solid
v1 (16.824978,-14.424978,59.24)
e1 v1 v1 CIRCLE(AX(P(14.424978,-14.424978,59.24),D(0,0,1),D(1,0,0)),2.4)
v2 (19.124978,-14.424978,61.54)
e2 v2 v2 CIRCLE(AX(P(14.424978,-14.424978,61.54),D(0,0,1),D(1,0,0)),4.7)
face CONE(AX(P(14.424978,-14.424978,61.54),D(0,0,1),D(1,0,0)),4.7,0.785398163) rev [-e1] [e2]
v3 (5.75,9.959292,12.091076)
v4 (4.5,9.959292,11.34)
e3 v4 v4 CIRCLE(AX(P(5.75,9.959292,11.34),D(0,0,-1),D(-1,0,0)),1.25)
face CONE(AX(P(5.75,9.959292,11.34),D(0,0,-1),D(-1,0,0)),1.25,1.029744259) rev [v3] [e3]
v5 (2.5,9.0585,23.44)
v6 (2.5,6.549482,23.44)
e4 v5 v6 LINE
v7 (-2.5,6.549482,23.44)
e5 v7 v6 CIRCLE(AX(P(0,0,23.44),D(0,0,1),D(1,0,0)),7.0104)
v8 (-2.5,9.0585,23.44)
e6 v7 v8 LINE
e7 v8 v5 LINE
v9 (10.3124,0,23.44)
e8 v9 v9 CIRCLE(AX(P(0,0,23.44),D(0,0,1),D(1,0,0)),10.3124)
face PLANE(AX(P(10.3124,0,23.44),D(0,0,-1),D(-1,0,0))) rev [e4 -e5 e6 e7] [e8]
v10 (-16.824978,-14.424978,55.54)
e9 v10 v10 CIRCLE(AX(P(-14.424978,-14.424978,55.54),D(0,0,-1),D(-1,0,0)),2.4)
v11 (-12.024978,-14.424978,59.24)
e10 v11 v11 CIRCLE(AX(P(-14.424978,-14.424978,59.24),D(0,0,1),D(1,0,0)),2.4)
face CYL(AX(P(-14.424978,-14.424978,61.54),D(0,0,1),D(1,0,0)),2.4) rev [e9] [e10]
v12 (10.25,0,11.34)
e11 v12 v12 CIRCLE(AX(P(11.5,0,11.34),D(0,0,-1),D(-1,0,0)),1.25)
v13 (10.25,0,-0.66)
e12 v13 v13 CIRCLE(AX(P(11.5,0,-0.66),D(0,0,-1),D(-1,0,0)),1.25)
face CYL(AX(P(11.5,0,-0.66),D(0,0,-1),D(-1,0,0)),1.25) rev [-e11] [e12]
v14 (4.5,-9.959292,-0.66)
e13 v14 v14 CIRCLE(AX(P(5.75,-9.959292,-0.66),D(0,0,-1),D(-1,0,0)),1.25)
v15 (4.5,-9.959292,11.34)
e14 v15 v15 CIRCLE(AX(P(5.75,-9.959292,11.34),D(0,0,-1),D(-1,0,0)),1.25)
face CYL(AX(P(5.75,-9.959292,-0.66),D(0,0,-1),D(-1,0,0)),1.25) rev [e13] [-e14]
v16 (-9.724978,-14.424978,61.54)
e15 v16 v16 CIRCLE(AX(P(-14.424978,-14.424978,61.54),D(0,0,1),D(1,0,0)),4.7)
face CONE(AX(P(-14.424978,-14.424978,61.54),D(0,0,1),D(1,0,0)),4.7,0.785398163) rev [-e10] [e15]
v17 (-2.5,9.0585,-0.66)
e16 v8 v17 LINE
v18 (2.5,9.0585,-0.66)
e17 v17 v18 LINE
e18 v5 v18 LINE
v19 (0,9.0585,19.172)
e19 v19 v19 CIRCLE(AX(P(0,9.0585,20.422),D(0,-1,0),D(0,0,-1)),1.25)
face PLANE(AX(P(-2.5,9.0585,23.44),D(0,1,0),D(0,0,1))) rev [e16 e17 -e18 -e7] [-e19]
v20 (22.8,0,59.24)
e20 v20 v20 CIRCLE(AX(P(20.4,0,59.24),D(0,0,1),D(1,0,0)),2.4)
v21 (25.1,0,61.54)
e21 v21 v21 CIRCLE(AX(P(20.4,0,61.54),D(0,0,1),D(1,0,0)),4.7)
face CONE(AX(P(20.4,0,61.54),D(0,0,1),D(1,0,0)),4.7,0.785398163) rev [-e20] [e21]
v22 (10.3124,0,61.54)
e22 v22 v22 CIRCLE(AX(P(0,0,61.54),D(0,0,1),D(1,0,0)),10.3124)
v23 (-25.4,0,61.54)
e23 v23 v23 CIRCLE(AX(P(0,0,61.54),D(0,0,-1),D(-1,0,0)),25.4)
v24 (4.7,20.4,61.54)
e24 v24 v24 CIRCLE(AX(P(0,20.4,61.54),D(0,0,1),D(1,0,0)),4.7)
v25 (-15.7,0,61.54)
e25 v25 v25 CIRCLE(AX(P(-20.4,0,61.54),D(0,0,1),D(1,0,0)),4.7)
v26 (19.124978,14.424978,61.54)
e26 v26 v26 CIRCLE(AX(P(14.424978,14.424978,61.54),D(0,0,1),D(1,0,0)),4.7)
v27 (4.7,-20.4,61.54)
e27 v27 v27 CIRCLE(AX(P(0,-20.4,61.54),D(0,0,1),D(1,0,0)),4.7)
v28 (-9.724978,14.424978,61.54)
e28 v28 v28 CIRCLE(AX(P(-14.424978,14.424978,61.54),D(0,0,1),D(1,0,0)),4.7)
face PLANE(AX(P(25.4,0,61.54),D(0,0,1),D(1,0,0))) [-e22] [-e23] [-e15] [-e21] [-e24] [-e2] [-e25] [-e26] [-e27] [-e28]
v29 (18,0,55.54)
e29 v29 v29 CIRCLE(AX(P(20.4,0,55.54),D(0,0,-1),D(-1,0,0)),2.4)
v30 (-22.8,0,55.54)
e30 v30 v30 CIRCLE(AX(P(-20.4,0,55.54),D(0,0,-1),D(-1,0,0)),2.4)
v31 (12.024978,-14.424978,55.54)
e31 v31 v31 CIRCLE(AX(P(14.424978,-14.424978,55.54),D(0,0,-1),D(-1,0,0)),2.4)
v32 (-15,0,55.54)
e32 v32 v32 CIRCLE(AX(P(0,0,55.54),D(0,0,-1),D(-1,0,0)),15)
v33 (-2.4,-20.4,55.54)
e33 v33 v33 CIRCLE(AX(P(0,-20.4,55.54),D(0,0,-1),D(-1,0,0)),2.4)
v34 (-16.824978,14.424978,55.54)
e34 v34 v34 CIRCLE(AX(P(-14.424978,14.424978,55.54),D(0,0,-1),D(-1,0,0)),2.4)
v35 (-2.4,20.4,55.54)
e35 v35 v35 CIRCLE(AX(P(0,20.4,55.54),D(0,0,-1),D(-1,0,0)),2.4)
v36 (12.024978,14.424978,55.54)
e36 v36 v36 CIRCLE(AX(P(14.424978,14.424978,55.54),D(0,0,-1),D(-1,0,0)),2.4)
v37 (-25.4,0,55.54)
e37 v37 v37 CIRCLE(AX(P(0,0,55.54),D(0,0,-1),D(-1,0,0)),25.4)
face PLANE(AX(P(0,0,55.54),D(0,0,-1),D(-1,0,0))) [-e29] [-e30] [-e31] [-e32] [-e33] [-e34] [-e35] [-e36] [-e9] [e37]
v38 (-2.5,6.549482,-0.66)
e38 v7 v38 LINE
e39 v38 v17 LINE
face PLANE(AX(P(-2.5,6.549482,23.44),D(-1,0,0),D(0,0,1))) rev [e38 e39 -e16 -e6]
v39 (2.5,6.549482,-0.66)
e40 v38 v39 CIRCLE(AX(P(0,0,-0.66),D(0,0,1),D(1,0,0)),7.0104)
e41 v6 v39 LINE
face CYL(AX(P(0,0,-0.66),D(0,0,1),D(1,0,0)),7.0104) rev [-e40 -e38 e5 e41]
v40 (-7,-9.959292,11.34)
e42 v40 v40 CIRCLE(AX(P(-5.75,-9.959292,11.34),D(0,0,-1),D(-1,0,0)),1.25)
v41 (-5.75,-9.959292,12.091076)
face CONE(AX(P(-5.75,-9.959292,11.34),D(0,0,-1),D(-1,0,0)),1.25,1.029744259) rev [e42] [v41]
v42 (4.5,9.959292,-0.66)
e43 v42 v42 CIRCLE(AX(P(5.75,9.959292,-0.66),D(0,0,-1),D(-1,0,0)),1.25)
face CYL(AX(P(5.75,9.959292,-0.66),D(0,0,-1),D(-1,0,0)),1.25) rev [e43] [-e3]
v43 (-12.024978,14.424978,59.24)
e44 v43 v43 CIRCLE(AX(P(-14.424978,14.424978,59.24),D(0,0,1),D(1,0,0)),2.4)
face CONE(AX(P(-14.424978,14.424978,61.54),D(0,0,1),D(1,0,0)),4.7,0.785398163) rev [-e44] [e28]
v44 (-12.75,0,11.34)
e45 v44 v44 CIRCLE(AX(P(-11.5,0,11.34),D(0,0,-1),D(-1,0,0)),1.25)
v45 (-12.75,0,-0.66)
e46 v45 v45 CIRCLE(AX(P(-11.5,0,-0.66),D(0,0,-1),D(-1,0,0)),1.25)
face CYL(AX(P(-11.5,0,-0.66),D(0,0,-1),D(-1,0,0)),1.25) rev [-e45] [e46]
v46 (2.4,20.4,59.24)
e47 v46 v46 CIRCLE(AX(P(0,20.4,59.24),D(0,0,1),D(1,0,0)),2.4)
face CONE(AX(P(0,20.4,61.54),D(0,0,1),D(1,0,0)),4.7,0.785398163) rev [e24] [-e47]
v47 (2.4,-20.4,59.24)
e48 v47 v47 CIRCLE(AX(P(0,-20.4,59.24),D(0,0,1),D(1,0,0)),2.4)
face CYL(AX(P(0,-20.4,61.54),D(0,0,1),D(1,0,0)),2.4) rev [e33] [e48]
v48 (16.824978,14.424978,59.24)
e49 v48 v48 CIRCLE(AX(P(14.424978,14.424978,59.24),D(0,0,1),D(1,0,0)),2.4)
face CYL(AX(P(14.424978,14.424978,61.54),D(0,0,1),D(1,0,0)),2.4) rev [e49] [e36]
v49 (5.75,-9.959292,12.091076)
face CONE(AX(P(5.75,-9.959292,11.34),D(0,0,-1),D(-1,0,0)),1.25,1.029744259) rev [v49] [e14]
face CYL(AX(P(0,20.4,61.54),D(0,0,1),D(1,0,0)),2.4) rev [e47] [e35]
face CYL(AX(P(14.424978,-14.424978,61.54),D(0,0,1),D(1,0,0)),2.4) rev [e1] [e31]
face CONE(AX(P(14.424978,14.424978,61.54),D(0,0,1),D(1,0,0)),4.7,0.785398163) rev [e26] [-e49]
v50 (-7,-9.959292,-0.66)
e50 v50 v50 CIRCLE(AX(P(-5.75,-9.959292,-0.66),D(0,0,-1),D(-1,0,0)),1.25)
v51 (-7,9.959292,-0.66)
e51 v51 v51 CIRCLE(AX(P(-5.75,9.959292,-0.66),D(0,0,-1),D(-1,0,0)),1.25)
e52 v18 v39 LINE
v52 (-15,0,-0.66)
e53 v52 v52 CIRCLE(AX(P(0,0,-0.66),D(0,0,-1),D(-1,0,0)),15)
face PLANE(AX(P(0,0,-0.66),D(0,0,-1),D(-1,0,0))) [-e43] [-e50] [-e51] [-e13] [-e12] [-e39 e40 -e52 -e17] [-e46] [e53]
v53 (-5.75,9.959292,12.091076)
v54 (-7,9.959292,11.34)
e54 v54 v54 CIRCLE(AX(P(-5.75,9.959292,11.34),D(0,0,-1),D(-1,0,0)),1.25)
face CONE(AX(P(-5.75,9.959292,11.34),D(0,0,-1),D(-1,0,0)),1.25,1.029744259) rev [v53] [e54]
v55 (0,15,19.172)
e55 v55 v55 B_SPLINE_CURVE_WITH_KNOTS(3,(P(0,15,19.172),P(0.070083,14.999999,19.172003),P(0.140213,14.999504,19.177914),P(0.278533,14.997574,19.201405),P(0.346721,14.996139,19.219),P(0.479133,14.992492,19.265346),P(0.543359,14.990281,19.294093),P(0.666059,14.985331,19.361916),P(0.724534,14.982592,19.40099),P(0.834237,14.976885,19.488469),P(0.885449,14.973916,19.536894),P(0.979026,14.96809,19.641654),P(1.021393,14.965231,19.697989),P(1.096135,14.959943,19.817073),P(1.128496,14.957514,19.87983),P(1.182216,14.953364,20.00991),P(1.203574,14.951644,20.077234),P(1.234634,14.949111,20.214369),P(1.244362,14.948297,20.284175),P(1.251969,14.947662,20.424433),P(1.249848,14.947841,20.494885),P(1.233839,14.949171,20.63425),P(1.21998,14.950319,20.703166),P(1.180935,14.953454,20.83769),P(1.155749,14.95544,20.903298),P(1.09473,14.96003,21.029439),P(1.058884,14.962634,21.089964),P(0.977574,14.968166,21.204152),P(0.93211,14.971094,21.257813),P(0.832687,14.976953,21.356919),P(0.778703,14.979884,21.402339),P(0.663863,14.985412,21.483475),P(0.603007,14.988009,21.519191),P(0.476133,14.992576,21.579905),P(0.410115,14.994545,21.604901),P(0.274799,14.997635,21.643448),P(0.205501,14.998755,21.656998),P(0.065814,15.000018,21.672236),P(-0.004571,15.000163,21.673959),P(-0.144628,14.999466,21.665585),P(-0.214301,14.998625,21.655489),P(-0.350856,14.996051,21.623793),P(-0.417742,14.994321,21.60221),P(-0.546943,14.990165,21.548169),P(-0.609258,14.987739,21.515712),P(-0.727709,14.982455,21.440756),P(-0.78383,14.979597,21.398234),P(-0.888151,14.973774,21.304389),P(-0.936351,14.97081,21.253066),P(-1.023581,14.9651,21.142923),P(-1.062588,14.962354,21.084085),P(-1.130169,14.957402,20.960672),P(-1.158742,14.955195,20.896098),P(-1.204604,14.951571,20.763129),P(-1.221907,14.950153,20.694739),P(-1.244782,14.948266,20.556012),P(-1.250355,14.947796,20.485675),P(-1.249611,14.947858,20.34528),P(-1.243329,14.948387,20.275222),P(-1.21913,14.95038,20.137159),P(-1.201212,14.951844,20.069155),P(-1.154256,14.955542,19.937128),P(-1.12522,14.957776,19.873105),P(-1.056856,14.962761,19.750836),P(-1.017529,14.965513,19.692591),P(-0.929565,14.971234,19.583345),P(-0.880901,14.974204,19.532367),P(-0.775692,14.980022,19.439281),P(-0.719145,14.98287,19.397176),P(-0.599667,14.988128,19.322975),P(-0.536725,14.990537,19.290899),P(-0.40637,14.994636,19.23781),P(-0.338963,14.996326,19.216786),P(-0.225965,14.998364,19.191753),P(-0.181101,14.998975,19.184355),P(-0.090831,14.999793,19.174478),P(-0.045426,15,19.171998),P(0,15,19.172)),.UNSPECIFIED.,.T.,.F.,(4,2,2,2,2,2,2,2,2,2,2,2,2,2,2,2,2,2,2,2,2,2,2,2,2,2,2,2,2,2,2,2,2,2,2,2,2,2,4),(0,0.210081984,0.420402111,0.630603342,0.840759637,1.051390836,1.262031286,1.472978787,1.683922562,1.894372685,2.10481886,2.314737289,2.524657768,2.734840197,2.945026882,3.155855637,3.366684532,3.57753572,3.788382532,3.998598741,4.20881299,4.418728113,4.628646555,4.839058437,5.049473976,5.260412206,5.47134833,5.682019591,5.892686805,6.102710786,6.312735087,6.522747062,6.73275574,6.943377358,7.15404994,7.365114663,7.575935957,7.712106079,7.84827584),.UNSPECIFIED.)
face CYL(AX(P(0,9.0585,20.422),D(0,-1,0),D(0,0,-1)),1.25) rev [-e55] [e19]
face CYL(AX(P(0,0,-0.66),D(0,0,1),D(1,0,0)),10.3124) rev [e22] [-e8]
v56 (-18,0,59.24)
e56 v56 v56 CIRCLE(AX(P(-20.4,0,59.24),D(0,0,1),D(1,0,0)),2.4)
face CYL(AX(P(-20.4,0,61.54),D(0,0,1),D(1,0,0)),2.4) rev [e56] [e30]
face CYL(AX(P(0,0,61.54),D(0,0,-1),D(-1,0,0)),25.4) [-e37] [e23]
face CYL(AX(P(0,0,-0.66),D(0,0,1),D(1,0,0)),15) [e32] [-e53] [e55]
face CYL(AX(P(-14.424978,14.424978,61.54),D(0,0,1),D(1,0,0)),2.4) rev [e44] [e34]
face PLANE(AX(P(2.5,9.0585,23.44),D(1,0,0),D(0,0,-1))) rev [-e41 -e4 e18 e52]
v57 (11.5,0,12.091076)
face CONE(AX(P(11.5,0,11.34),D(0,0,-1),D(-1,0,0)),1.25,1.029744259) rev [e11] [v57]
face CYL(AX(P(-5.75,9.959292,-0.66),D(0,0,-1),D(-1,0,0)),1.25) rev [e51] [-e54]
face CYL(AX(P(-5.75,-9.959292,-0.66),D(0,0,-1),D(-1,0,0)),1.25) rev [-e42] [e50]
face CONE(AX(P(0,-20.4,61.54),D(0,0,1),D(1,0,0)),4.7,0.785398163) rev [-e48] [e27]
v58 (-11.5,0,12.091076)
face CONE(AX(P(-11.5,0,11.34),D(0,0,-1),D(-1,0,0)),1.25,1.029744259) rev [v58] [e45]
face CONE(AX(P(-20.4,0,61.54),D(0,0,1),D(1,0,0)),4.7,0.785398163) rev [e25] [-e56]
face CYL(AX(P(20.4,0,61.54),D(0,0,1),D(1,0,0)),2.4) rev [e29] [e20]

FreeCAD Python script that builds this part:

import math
import FreeCAD as App
import Part
import Sketcher
Q = App.Units.Quantity


def add_polygon(sketch, points):
    """Adds a closed chain of lines whose ends are joined by coincident constraints."""
    first, n = sketch.GeometryCount, len(points)
    for a, b in zip(points, points[1:] + points[:1]):
        sketch.addGeometry(Part.LineSegment(App.Vector(*a, 0), App.Vector(*b, 0)), False)
    for i in range(n):
        sketch.addConstraint(Sketcher.Constraint("Coincident", first + i, 2, first + (i + 1) % n, 1))

doc = App.newDocument("Part")
params = doc.addObject("Spreadsheet::Sheet", "Params")
for row, (alias, value) in enumerate([
    ("sketch1_height", "6 mm"),
    ("sketch1_width", "25.4 mm"),
    ("revolution_angle", "360 deg"),
    ("sketch2_diameter", "30 mm"),
    ("pad1_length", "56.2 mm"),
    ("sketch3_width", "5 mm"),
    ("pocket1_length", "24.1 mm"),
    ("sketch4_height", "62.2 mm"),
    ("sketch4_height2", "38.1 mm"),
    ("groove_angle", "360 deg"),
    ("sketch5_height", "1.25 mm"),
    ("groove2_angle", "360 deg"),
    ("sketch6_diameter", "2.5 mm"),
    ("hole_diameter", "2.5 mm"),
    ("hole_depth", "12 mm"),
    ("sketch7_diameter", "4.8 mm"),
    ("hole2_diameter", "4.8 mm"),
    ("hole2_csink_diameter", "9.4 mm"),
], start=1):
    params.set(f"A{row}", alias)
    params.set(f"B{row}", "=" + value)
    params.setAlias(f"B{row}", alias)

body = doc.addObject("PartDesign::Body", "Body")

# Sketch on XZ plane
sketch1 = body.newObject("Sketcher::SketchObject", "Sketch")
sketch1.AttachmentSupport = (doc.getObject("XZ_Plane"), [""])
sketch1.MapMode = "FlatFace"
add_polygon(sketch1, [(0, 62), (0, 56), (25, 56), (25, 62)])  # lines 0-3
sketch1.addConstraint([
    Sketcher.Constraint("Vertical", 0),
    Sketcher.Constraint("Horizontal", 1),
    Sketcher.Constraint("Vertical", 2),
    Sketcher.Constraint("Horizontal", 3),
    Sketcher.Constraint("PointOnObject", 0, 2, -2),
    Sketcher.Constraint("DistanceY", 0, 2, 0, 1, Q("6 mm")),
    Sketcher.Constraint("DistanceX", 1, 1, 1, 2, Q("25.4 mm")),
    Sketcher.Constraint("DistanceY", -1, 1, 0, 2, Q("55.54 mm")),
])
sketch1.setExpression("Constraints[9]", "Params.sketch1_height")
sketch1.setExpression("Constraints[10]", "Params.sketch1_width")
revolution = body.newObject("PartDesign::Revolution", "Revolution")
revolution.Profile = sketch1
revolution.ReferenceAxis = (sketch1, ["V_Axis"])
revolution.setExpression("Angle", "Params.revolution_angle")

# Sketch on XY plane
sketch2 = body.newObject("Sketcher::SketchObject", "Sketch001")
sketch2.AttachmentSupport = (doc.getObject("XY_Plane"), [""])
sketch2.MapMode = "FlatFace"
sketch2.AttachmentOffset = App.Placement(App.Vector(0, 0, 55.54), App.Rotation())
sketch2.addGeometry(Part.Circle(App.Vector(0, 0, 0), App.Vector(0, 0, 1), 15), False)
sketch2.addConstraint([
    Sketcher.Constraint("Coincident", 0, 3, -1, 1),
    Sketcher.Constraint("Diameter", 0, Q("30 mm")),
])
sketch2.setExpression("Constraints[1]", "Params.sketch2_diameter")
pad1 = body.newObject("PartDesign::Pad", "Pad")
pad1.Profile = sketch2
pad1.setExpression("Length", "Params.pad1_length")
pad1.Reversed = True

# Sketch on XY plane
sketch3 = body.newObject("Sketcher::SketchObject", "Sketch002")
sketch3.AttachmentSupport = (doc.getObject("XY_Plane"), [""])
sketch3.MapMode = "FlatFace"
sketch3.AttachmentOffset = App.Placement(App.Vector(0, 0, -0.66), App.Rotation())
sketch3.addGeometry([
    Part.LineSegment(App.Vector(-2.5, 9.1, 0), App.Vector(2.5, 9.1, 0)),
    Part.LineSegment(App.Vector(2.5, 9.1, 0), App.Vector(2.5, 6.5, 0)),
    Part.ArcOfCircle(Part.Circle(App.Vector(0, 0, 0), App.Vector(0, 0, 1), 7), math.radians(69), math.radians(111)),
    Part.LineSegment(App.Vector(-2.5, 6.5, 0), App.Vector(-2.5, 9.1, 0)),
], False)
sketch3.addConstraint([
    Sketcher.Constraint("Coincident", 0, 2, 1, 1),
    Sketcher.Constraint("Coincident", 1, 2, 2, 1),
    Sketcher.Constraint("Coincident", 2, 2, 3, 1),
    Sketcher.Constraint("Coincident", 3, 2, 0, 1),
    Sketcher.Constraint("Horizontal", 0),
    Sketcher.Constraint("Vertical", 1),
    Sketcher.Constraint("Vertical", 3),
    Sketcher.Constraint("Coincident", 2, 3, -1, 1),
    Sketcher.Constraint("Horizontal", 1, 2, 2, 2),
    Sketcher.Constraint("DistanceX", 0, 1, 0, 2, Q("5 mm")),
    Sketcher.Constraint("Radius", 2, Q("7.0104 mm")),
    Sketcher.Constraint("DistanceY", 1, 2, 1, 1, Q("2.509018 mm")),
])
sketch3.setExpression("Constraints[9]", "Params.sketch3_width")
pocket1 = body.newObject("PartDesign::Pocket", "Pocket")
pocket1.Profile = sketch3
pocket1.setExpression("Length", "Params.pocket1_length")
pocket1.Reversed = True

# Sketch on XZ plane
sketch4 = body.newObject("Sketcher::SketchObject", "Sketch003")
sketch4.AttachmentSupport = (doc.getObject("XZ_Plane"), [""])
sketch4.MapMode = "FlatFace"
add_polygon(sketch4, [(7, -0.7), (0, -0.7), (0, 61.5), (10.3, 61.5), (10.3, 23.4), (7, 23.4)])  # lines 0-5
sketch4.addConstraint([
    Sketcher.Constraint("Horizontal", 0),
    Sketcher.Constraint("Vertical", 1),
    Sketcher.Constraint("Horizontal", 2),
    Sketcher.Constraint("Vertical", 3),
    Sketcher.Constraint("Horizontal", 4),
    Sketcher.Constraint("Vertical", 5),
    Sketcher.Constraint("PointOnObject", 0, 2, -2),
    Sketcher.Constraint("DistanceY", 1, 1, 1, 2, Q("62.2 mm")),
    Sketcher.Constraint("DistanceY", 3, 2, 3, 1, Q("38.1 mm")),
    Sketcher.Constraint("DistanceX", 4, 2, 4, 1, Q("3.302 mm")),
    Sketcher.Constraint("DistanceY", 0, 2, -1, 1, Q("0.66 mm")),
    Sketcher.Constraint("DistanceX", 0, 2, 0, 1, Q("7.0104 mm")),
])
sketch4.setExpression("Constraints[13]", "Params.sketch4_height")
sketch4.setExpression("Constraints[14]", "Params.sketch4_height2")
groove = body.newObject("PartDesign::Groove", "Groove")
groove.Profile = sketch4
groove.ReferenceAxis = (sketch4, ["V_Axis"])
groove.setExpression("Angle", "Params.groove_angle")

# Sketch on YZ plane
sketch5 = body.newObject("Sketcher::SketchObject", "Sketch004")
sketch5.AttachmentSupport = (doc.getObject("YZ_Plane"), [""])
sketch5.MapMode = "FlatFace"
add_polygon(sketch5, [(25.4, 20.4), (9.1, 20.4), (9.1, 19.2), (25.4, 19.2)])  # lines 0-3
sketch5.addGeometry(Part.LineSegment(App.Vector(9.1, 20.4, 0), App.Vector(25.4, 20.4, 0)), True)  # axis
sketch5.addConstraint([
    Sketcher.Constraint("Horizontal", 0),
    Sketcher.Constraint("Vertical", 1),
    Sketcher.Constraint("Horizontal", 2),
    Sketcher.Constraint("Vertical", 3),
    Sketcher.Constraint("Horizontal", 4),
    Sketcher.Constraint("Coincident", 4, 1, 0, 2),
    Sketcher.Constraint("Vertical", 2, 2, 4, 2),
    Sketcher.Constraint("DistanceY", 1, 2, 1, 1, Q("1.25 mm")),
    Sketcher.Constraint("DistanceX", -1, 1, 2, 2, Q("25.4 mm")),
    Sketcher.Constraint("DistanceX", 0, 2, 0, 1, Q("16.3415 mm")),
    Sketcher.Constraint("DistanceY", -1, 1, 0, 2, Q("20.422 mm")),
])
sketch5.setExpression("Constraints[11]", "Params.sketch5_height")
groove2 = body.newObject("PartDesign::Groove", "Groove001")
groove2.Profile = sketch5
groove2.ReferenceAxis = (sketch5, ["Axis0"])
groove2.setExpression("Angle", "Params.groove2_angle")

# Sketch on XY plane
sketch6 = body.newObject("Sketcher::SketchObject", "Sketch005")
sketch6.AttachmentSupport = (doc.getObject("XY_Plane"), [""])
sketch6.MapMode = "FlatFace"
sketch6.AttachmentOffset = App.Placement(App.Vector(0, 0, -0.66), App.Rotation())
sketch6.addGeometry([
    Part.Circle(App.Vector(11.5, 0, 0), App.Vector(0, 0, 1), 1.2),  # 0
    Part.Circle(App.Vector(5.8, -10, 0), App.Vector(0, 0, 1), 1.2),  # 1
    Part.Circle(App.Vector(-5.8, -10, 0), App.Vector(0, 0, 1), 1.2),  # 2
    Part.Circle(App.Vector(-11.5, 0, 0), App.Vector(0, 0, 1), 1.2),  # 3
    Part.Circle(App.Vector(-5.8, 10, 0), App.Vector(0, 0, 1), 1.2),  # 4
    Part.Circle(App.Vector(5.8, 10, 0), App.Vector(0, 0, 1), 1.2),  # 5
], False)
sketch6.addConstraint([
    Sketcher.Constraint("Equal", 0, 1),
    Sketcher.Constraint("Equal", 1, 2),
    Sketcher.Constraint("Equal", 2, 3),
    Sketcher.Constraint("Equal", 3, 4),
    Sketcher.Constraint("Equal", 4, 5),
    Sketcher.Constraint("Symmetric", 0, 3, 3, 3, -1, 1),
    Sketcher.Constraint("Symmetric", 1, 3, 4, 3, -1, 1),
    Sketcher.Constraint("Symmetric", 2, 3, 5, 3, -1, 1),
    Sketcher.Constraint("Symmetric", 1, 3, 2, 3, -2),
    Sketcher.Constraint("PointOnObject", 0, 3, -1),
    Sketcher.Constraint("Diameter", 0, Q("2.5 mm")),
    Sketcher.Constraint("DistanceX", 3, 3, 0, 3, Q("23 mm")),
    Sketcher.Constraint("DistanceX", 2, 3, 1, 3, Q("11.5 mm")),
    Sketcher.Constraint("DistanceY", 1, 3, -1, 1, Q("9.959292 mm")),
])
sketch6.setExpression("Constraints[10]", "Params.sketch6_diameter")
doc.recompute()
hole = body.newObject("PartDesign::Hole", "Hole")
hole.Profile = sketch6
hole.ThreadType = "None"
hole.setExpression("Diameter", "Params.hole_diameter")
hole.DepthType = "Dimension"
hole.setExpression("Depth", "Params.hole_depth")
hole.DrillPoint = "Angled"
hole.DrillPointAngle = 118
hole.Reversed = True

# Sketch on XY plane
sketch7 = body.newObject("Sketcher::SketchObject", "Sketch006")
sketch7.AttachmentSupport = (doc.getObject("XY_Plane"), [""])
sketch7.MapMode = "FlatFace"
sketch7.AttachmentOffset = App.Placement(App.Vector(0, 0, 61.54), App.Rotation())
sketch7.addGeometry([
    Part.Circle(App.Vector(0, 20.4, 0), App.Vector(0, 0, 1), 2.4),  # 0
    Part.Circle(App.Vector(14.4, 14.4, 0), App.Vector(0, 0, 1), 2.4),  # 1
    Part.Circle(App.Vector(20.4, 0, 0), App.Vector(0, 0, 1), 2.4),  # 2
    Part.Circle(App.Vector(14.4, -14.4, 0), App.Vector(0, 0, 1), 2.4),  # 3
    Part.Circle(App.Vector(0, -20.4, 0), App.Vector(0, 0, 1), 2.4),  # 4
    Part.Circle(App.Vector(-14.4, -14.4, 0), App.Vector(0, 0, 1), 2.4),  # 5
    Part.Circle(App.Vector(-20.4, 0, 0), App.Vector(0, 0, 1), 2.4),  # 6
    Part.Circle(App.Vector(-14.4, 14.4, 0), App.Vector(0, 0, 1), 2.4),  # 7
], False)
sketch7.addConstraint([
    Sketcher.Constraint("Equal", 0, 1),
    Sketcher.Constraint("Equal", 1, 2),
    Sketcher.Constraint("Equal", 2, 3),
    Sketcher.Constraint("Equal", 3, 4),
    Sketcher.Constraint("Equal", 4, 5),
    Sketcher.Constraint("Equal", 5, 6),
    Sketcher.Constraint("Equal", 6, 7),
    Sketcher.Constraint("Symmetric", 0, 3, 4, 3, -1, 1),
    Sketcher.Constraint("Symmetric", 1, 3, 5, 3, -1, 1),
    Sketcher.Constraint("Symmetric", 2, 3, 6, 3, -1, 1),
    Sketcher.Constraint("Symmetric", 3, 3, 7, 3, -1, 1),
    Sketcher.Constraint("Symmetric", 3, 3, 5, 3, -2),
    Sketcher.Constraint("PointOnObject", 0, 3, -2),
    Sketcher.Constraint("PointOnObject", 2, 3, -1),
    Sketcher.Constraint("Diameter", 0, Q("4.8 mm")),
    Sketcher.Constraint("DistanceY", -1, 1, 0, 3, Q("20.4 mm")),
    Sketcher.Constraint("DistanceX", -1, 1, 2, 3, Q("20.4 mm")),
    Sketcher.Constraint("DistanceX", -1, 1, 1, 3, Q("14.424978 mm")),
    Sketcher.Constraint("DistanceY", -1, 1, 1, 3, Q("14.424978 mm")),
])
sketch7.setExpression("Constraints[14]", "Params.sketch7_diameter")
doc.recompute()
hole2 = body.newObject("PartDesign::Hole", "Hole001")
hole2.Profile = sketch7
hole2.ThreadType = "None"
hole2.setExpression("Diameter", "Params.hole2_diameter")
hole2.DepthType = "ThroughAll"
hole2.HoleCutType = "Countersink"
hole2.setExpression("HoleCutDiameter", "Params.hole2_csink_diameter")
hole2.HoleCutCountersinkAngle = 90

doc.recompute()
